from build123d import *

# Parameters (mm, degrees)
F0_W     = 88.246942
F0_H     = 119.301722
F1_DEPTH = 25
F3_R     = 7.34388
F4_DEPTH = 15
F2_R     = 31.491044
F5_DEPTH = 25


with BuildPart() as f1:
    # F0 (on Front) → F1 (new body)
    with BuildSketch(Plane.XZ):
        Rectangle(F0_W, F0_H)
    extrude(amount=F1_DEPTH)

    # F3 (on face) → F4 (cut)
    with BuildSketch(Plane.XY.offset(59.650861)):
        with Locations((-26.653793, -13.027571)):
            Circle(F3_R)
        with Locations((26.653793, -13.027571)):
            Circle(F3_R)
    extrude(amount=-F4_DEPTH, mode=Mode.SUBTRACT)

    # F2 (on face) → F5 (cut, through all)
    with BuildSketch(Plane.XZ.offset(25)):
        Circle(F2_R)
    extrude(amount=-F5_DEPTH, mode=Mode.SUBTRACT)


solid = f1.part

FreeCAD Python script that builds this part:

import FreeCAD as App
import Part
import Sketcher

V = App.Vector

doc = App.newDocument("Part")
body = doc.addObject("PartDesign::Body", "Body")

sketch1 = body.newObject("Sketcher::SketchObject", "Sketch")
sketch1.AttachmentSupport = (doc.getObject("XZ_Plane"), [""])
sketch1.MapMode = "FlatFace"
sketch1.addGeometry(Part.LineSegment(V(-44, 60, 0), V(-44, -60, 0)), False)
sketch1.addGeometry(Part.LineSegment(V(-44, -60, 0), V(44, -60, 0)), False)
sketch1.addGeometry(Part.LineSegment(V(44, -60, 0), V(44, 60, 0)), False)
sketch1.addGeometry(Part.LineSegment(V(44, 60, 0), V(-44, 60, 0)), False)
sketch1.addConstraint(Sketcher.Constraint("Coincident", 0, 2, 1, 1))
sketch1.addConstraint(Sketcher.Constraint("Coincident", 1, 2, 2, 1))
sketch1.addConstraint(Sketcher.Constraint("Coincident", 2, 2, 3, 1))
sketch1.addConstraint(Sketcher.Constraint("Coincident", 3, 2, 0, 1))
sketch1.addConstraint(Sketcher.Constraint("Vertical", 0))
sketch1.addConstraint(Sketcher.Constraint("Horizontal", 1))
sketch1.addConstraint(Sketcher.Constraint("Vertical", 2))
sketch1.addConstraint(Sketcher.Constraint("Horizontal", 3))
sketch1.addConstraint(Sketcher.Constraint("Symmetric", 0, 2, 2, 2, -1, 1))
sketch1.addConstraint(Sketcher.Constraint("DistanceY", 0, 2, 0, 1, 119.301722))
sketch1.addConstraint(Sketcher.Constraint("DistanceX", 1, 1, 1, 2, 88.246942))
pad1 = body.newObject("PartDesign::Pad", "Pad")
pad1.Profile = sketch1
pad1.Length = 25

sketch2 = body.newObject("Sketcher::SketchObject", "Sketch001")
sketch2.AttachmentSupport = (doc.getObject("XY_Plane"), [""])
sketch2.MapMode = "FlatFace"
sketch2.AttachmentOffset = App.Placement(V(0, 0, 59.650861), App.Rotation())
sketch2.addGeometry(Part.Circle(V(-27, -13, 0), V(0, 0, 1), 7), False)
sketch2.addGeometry(Part.Circle(V(27, -13, 0), V(0, 0, 1), 7), False)
sketch2.addConstraint(Sketcher.Constraint("Equal", 0, 1))
sketch2.addConstraint(Sketcher.Constraint("Symmetric", 0, 3, 1, 3, -2))
sketch2.addConstraint(Sketcher.Constraint("Diameter", 0, 14.68776))
sketch2.addConstraint(Sketcher.Constraint("DistanceY", 0, 3, -1, 1, 13.027571))
sketch2.addConstraint(Sketcher.Constraint("DistanceX", 0, 3, -1, 1, 26.653793))
pocket1 = body.newObject("PartDesign::Pocket", "Pocket")
pocket1.Profile = sketch2
pocket1.Length = 15

sketch3 = body.newObject("Sketcher::SketchObject", "Sketch002")
sketch3.AttachmentSupport = (doc.getObject("XZ_Plane"), [""])
sketch3.MapMode = "FlatFace"
sketch3.AttachmentOffset = App.Placement(V(0, 0, 25), App.Rotation())
sketch3.addGeometry(Part.Circle(V(0, 0, 0), V(0, 0, 1), 31), False)
sketch3.addConstraint(Sketcher.Constraint("Coincident", 0, 3, -1, 1))
sketch3.addConstraint(Sketcher.Constraint("Diameter", 0, 62.982088))
pocket2 = body.newObject("PartDesign::Pocket", "Pocket001")
pocket2.Profile = sketch3
pocket2.Type = "ThroughAll"

doc.recompute()
